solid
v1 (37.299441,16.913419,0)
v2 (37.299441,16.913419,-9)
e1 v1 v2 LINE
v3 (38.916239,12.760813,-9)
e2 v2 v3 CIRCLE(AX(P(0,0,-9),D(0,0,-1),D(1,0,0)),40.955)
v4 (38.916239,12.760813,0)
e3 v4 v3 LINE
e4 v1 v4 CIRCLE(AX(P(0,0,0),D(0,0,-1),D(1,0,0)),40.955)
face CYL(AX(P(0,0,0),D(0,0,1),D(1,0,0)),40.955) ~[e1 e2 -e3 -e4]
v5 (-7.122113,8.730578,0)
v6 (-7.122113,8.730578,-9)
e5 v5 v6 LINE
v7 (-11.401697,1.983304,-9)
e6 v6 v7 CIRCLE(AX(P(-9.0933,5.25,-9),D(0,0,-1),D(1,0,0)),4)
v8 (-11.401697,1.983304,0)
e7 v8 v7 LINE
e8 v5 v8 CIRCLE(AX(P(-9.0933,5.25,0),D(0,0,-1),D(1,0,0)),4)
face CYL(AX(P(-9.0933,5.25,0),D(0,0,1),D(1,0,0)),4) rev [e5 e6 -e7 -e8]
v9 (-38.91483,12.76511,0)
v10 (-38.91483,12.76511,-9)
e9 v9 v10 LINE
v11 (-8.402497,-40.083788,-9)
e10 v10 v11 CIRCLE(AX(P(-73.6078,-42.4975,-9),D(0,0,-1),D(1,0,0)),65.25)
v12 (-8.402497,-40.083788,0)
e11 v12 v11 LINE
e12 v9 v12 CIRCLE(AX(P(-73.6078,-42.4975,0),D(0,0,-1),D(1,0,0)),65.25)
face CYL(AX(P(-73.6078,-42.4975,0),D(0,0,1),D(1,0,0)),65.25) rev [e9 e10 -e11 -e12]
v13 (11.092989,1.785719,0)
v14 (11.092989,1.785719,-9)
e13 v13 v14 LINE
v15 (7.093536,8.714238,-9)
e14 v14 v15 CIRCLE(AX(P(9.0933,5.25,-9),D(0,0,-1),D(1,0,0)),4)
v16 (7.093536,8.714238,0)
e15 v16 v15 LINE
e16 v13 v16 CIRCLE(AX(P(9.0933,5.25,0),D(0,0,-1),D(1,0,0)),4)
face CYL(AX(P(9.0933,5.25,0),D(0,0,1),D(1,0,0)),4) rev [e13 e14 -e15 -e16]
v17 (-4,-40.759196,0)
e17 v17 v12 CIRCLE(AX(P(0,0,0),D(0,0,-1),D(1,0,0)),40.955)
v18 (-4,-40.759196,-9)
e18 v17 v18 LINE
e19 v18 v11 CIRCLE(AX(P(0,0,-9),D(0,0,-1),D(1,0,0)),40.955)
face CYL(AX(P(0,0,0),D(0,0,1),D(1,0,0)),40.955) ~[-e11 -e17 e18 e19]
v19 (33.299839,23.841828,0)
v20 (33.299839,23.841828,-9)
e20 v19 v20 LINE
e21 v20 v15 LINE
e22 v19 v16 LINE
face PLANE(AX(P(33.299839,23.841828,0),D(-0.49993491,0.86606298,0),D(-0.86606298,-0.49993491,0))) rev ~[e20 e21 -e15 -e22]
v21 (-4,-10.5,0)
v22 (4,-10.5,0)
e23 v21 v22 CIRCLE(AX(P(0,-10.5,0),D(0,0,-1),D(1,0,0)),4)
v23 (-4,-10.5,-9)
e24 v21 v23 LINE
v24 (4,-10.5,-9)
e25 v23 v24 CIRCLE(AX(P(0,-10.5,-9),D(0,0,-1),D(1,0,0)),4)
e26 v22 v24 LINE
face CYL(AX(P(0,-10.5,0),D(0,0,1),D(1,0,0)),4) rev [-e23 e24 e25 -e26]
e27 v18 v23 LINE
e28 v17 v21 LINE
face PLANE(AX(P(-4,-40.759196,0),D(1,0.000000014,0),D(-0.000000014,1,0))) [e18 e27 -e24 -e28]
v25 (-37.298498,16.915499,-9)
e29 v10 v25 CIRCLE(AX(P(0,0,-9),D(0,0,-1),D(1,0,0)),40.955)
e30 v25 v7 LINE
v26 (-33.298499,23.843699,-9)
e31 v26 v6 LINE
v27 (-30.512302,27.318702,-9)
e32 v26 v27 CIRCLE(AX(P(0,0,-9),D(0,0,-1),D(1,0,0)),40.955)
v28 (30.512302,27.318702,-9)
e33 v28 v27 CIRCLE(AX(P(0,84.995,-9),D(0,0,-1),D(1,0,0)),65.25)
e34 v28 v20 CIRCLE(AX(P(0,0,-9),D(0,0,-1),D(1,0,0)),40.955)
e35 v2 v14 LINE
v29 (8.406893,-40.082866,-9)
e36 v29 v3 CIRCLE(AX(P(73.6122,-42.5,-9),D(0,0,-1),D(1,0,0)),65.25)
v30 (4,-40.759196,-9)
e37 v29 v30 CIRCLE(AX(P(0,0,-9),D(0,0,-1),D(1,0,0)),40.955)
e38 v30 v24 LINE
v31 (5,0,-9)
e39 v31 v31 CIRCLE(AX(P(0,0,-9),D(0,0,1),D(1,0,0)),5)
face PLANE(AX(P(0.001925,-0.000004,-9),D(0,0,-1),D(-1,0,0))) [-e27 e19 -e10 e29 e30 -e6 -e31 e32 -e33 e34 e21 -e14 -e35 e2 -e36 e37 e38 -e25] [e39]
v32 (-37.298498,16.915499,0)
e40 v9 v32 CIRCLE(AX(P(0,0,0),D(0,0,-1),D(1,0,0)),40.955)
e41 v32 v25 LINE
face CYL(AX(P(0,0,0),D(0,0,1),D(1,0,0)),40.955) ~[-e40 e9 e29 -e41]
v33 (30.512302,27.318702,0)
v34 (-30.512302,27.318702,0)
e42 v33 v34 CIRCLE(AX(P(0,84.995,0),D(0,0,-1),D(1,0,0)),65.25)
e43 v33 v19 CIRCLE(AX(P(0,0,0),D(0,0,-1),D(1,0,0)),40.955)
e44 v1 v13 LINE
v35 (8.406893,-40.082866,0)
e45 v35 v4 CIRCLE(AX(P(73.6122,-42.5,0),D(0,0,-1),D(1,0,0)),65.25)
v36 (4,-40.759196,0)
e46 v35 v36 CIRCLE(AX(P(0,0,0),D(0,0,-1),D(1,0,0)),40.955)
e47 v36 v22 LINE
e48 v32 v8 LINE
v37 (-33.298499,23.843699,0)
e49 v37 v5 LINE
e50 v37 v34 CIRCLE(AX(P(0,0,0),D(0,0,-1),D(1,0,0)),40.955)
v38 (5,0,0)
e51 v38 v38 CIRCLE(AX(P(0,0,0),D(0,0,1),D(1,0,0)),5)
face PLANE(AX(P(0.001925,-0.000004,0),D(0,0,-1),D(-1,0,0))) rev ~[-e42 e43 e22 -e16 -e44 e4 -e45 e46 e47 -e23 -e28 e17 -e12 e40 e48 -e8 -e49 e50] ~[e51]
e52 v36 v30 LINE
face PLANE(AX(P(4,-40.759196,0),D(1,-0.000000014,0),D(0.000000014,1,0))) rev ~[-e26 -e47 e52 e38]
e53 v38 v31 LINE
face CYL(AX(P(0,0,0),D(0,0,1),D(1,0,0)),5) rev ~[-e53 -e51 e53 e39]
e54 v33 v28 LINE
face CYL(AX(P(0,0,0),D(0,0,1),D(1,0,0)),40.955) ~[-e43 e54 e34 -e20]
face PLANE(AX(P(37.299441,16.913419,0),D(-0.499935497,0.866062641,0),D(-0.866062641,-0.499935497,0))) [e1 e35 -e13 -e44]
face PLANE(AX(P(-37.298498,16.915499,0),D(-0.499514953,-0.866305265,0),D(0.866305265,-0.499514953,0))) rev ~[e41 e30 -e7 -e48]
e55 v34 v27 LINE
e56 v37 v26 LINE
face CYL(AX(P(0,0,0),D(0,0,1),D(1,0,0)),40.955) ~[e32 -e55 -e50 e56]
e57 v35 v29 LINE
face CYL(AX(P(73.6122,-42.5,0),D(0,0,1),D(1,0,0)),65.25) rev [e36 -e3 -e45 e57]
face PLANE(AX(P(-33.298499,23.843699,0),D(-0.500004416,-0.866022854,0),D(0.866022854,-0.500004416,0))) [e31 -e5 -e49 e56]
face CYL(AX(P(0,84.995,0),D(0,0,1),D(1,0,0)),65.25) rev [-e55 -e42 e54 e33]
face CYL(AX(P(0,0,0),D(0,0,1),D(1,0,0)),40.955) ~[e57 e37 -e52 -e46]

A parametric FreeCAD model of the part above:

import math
import FreeCAD as App
import Part
import Sketcher
Q = App.Units.Quantity

doc = App.newDocument("Part")
body = doc.addObject("PartDesign::Body", "Body")

# Sketch on XY plane
sketch1 = doc.addObject("Sketcher::SketchObject", "Sketch")
body.addObject(sketch1)
sketch1.AttachmentSupport = (doc.XY_Plane, [""])
sketch1.MapMode = "FlatFace"
sketch1.addGeometry([
    Part.ArcOfCircle(Part.Circle(App.Vector(-0.001137, -0.000479, 0), App.Vector(0, 0, 1), 40.956188), math.radians(18.154695), math.radians(24.391852)),  # 0
    Part.LineSegment(App.Vector(37.2994, 16.9134, 0), App.Vector(11.093, 1.7857, 0)),  # 1
    Part.ArcOfCircle(Part.Circle(App.Vector(9.0933, 5.25, 0), App.Vector(0, 0, 1), 4.000022), math.radians(119.996098), math.radians(299.994858)),  # 2
    Part.LineSegment(App.Vector(7.0935, 8.7143, 0), App.Vector(33.2998, 23.8418, 0)),  # 3
    Part.ArcOfCircle(Part.Circle(App.Vector(0.011677, 0.009896, 0), App.Vector(0, 0, 1), 40.939697), math.radians(35.599942), math.radians(41.83975)),  # 4
    Part.ArcOfCircle(Part.Circle(App.Vector(0, 84.995, 0), App.Vector(0, 0, 1), 65.24995), math.radians(-117.880034), math.radians(-62.119966)),  # 5
    Part.ArcOfCircle(Part.Circle(App.Vector(-0.001023, 0.000775, 0), App.Vector(0, 0, 1), 40.953718), math.radians(138.160687), math.radians(144.39514)),  # 6
    Part.LineSegment(App.Vector(-33.2985, 23.8437, 0), App.Vector(-7.1221, 8.7306, 0)),  # 7
    Part.ArcOfCircle(Part.Circle(App.Vector(-9.0933, 5.25, 0), App.Vector(0, 0, 1), 4.000026), math.radians(-125.24678), math.radians(60.475425)),  # 8
    Part.LineSegment(App.Vector(-11.4017, 1.9833, 0), App.Vector(-37.2985, 16.9155, 0)),  # 9
    Part.ArcOfCircle(Part.Circle(App.Vector(0.010903, -0.003908, 0), App.Vector(0, 0, 1), 40.966547), math.radians(155.606225), math.radians(161.838679)),  # 10
    Part.ArcOfCircle(Part.Circle(App.Vector(-73.6078, -42.4975, 0), App.Vector(0, 0, 1), 65.249975), math.radians(2.119946), math.radians(57.880038)),  # 11
    Part.ArcOfCircle(Part.Circle(App.Vector(0.000332, 0.002638, 0), App.Vector(0, 0, 1), 40.957662), math.radians(-101.838805), math.radians(-95.60501)),  # 12
    Part.LineSegment(App.Vector(-4, -40.7592, 0), App.Vector(-4, -10.5, 0)),  # 13
    Part.ArcOfCircle(Part.Circle(App.Vector(0, -10.5, 0), App.Vector(0, 0, 1), 4), math.radians(0), math.radians(180)),  # 14
    Part.LineSegment(App.Vector(4, -10.5, 0), App.Vector(4, -40.7592, 0)),  # 15
    Part.ArcOfCircle(Part.Circle(App.Vector(0.001805, -0.009949, 0), App.Vector(0, 0, 1), 40.944927), math.radians(-84.396246), math.radians(-78.154224)),  # 16
    Part.ArcOfCircle(Part.Circle(App.Vector(73.6122, -42.5, 0), App.Vector(0, 0, 1), 65.249985), math.radians(122.123034), math.radians(177.877071)),  # 17
], False)
sketch1.addConstraint([
    Sketcher.Constraint("Coincident", 0, 2, 1, 1),
    Sketcher.Constraint("Tangent", 1, 2, 2, 2),
    Sketcher.Constraint("Tangent", 2, 1, 3, 1),
    Sketcher.Constraint("Coincident", 3, 2, 4, 1),
    Sketcher.Constraint("Coincident", 4, 2, 5, 2),
    Sketcher.Constraint("Coincident", 5, 1, 6, 1),
    Sketcher.Constraint("Coincident", 6, 2, 7, 1),
    Sketcher.Constraint("Coincident", 7, 2, 8, 2),
    Sketcher.Constraint("Coincident", 8, 1, 9, 1),
    Sketcher.Constraint("Coincident", 9, 2, 10, 1),
    Sketcher.Constraint("Coincident", 10, 2, 11, 2),
    Sketcher.Constraint("Coincident", 11, 1, 12, 1),
    Sketcher.Constraint("Coincident", 12, 2, 13, 1),
    Sketcher.Constraint("Tangent", 13, 2, 14, 2),
    Sketcher.Constraint("Tangent", 14, 1, 15, 1),
    Sketcher.Constraint("Coincident", 15, 2, 16, 1),
    Sketcher.Constraint("Coincident", 16, 2, 17, 2),
    Sketcher.Constraint("Coincident", 17, 1, 0, 1),
    Sketcher.Constraint("Vertical", 13),
    Sketcher.Constraint("Vertical", 15),
    Sketcher.Constraint("Equal", 2, 8),
    Sketcher.Constraint("Equal", 5, 11),
    Sketcher.Constraint("Equal", 8, 14),
    Sketcher.Constraint("Equal", 11, 17),
    Sketcher.Constraint("Symmetric", 2, 3, 8, 3, -2),
    Sketcher.Constraint("Symmetric", 4, 2, 5, 1, -2),
    Sketcher.Constraint("Symmetric", 12, 2, 15, 2, -2),
    Sketcher.Constraint("Symmetric", 0, 3, 6, 3, -1),
    Sketcher.Constraint("Parallel", 1, 3),
    Sketcher.Constraint("Equal", 1, 3),
    Sketcher.Constraint("Radius", 2, 4.0),
    Sketcher.Constraint("Angle", 7, Q("-30.0002 deg")),
    Sketcher.Constraint("Radius", 5, 65.25),
    Sketcher.Constraint("Radius", 16, 40.945),
    Sketcher.Constraint("DistanceY", 17, 3, 14, 3, 32.0),
    Sketcher.Constraint("DistanceX", 9, 2, 6, 2, 4.0),
    Sketcher.Constraint("DistanceY", 14, 3, -1, 1, 10.5),
    Sketcher.Constraint("Radius", 0, 40.9562),
    Sketcher.Constraint("Radius", 4, 40.9397),
    Sketcher.Constraint("Radius", 6, 40.9537),
    Sketcher.Constraint("Radius", 10, 40.9665),
    Sketcher.Constraint("Radius", 12, 40.9577),
    Sketcher.Constraint("DistanceY", -1, 1, 2, 3, 5.25),
    Sketcher.Constraint("DistanceY", -1, 1, 4, 3, 0.01),
    Sketcher.Constraint("DistanceY", 16, 3, -1, 1, 0.01),
    Sketcher.Constraint("DistanceY", 11, 1, 10, 3, 40.08),
    Sketcher.Constraint("Distance", 3, 30.259),
    Sketcher.Constraint("Distance", 7, 30.226),
    Sketcher.Constraint("DistanceY", 13, 1, 13, 2, 30.2592),
    Sketcher.Constraint("DistanceY", -1, 1, 5, 3, 84.995),
    Sketcher.Constraint("DistanceX", 6, 3, -1, 1, 0.001),
    Sketcher.Constraint("DistanceX", -1, 1, 10, 3, 0.011),
    Sketcher.Constraint("DistanceY", 10, 3, -1, 1, 0.004),
    Sketcher.Constraint("DistanceX", -1, 1, 1, 2, 11.093),
    Sketcher.Constraint("DistanceY", -1, 1, 10, 2, 12.765),
    Sketcher.Constraint("DistanceX", -1, 1, 16, 2, 8.407),
    Sketcher.Constraint("DistanceY", 11, 3, 0, 3, 42.497),
    Sketcher.Constraint("DistanceX", 8, 1, 12, 3, 11.402),
])
pad1 = doc.addObject("PartDesign::Pad", "Pad")
body.addObject(pad1)
pad1.Profile = sketch1
pad1.Length = 9
pad1.Reversed = True

# Sketch on XY plane
sketch2 = doc.addObject("Sketcher::SketchObject", "Sketch001")
body.addObject(sketch2)
sketch2.AttachmentSupport = (doc.XY_Plane, [""])
sketch2.MapMode = "FlatFace"
sketch2.addGeometry(Part.Circle(App.Vector(0, 0, 0), App.Vector(0, 0, 1), 5), False)
sketch2.addConstraint([
    Sketcher.Constraint("Coincident", 0, 3, -1, 1),
    Sketcher.Constraint("Diameter", 0, 10.0),
])
pocket1 = doc.addObject("PartDesign::Pocket", "Pocket")
body.addObject(pocket1)
pocket1.Profile = sketch2
pocket1.Length = 312.1843
pocket1.Midplane = True

doc.recompute()
